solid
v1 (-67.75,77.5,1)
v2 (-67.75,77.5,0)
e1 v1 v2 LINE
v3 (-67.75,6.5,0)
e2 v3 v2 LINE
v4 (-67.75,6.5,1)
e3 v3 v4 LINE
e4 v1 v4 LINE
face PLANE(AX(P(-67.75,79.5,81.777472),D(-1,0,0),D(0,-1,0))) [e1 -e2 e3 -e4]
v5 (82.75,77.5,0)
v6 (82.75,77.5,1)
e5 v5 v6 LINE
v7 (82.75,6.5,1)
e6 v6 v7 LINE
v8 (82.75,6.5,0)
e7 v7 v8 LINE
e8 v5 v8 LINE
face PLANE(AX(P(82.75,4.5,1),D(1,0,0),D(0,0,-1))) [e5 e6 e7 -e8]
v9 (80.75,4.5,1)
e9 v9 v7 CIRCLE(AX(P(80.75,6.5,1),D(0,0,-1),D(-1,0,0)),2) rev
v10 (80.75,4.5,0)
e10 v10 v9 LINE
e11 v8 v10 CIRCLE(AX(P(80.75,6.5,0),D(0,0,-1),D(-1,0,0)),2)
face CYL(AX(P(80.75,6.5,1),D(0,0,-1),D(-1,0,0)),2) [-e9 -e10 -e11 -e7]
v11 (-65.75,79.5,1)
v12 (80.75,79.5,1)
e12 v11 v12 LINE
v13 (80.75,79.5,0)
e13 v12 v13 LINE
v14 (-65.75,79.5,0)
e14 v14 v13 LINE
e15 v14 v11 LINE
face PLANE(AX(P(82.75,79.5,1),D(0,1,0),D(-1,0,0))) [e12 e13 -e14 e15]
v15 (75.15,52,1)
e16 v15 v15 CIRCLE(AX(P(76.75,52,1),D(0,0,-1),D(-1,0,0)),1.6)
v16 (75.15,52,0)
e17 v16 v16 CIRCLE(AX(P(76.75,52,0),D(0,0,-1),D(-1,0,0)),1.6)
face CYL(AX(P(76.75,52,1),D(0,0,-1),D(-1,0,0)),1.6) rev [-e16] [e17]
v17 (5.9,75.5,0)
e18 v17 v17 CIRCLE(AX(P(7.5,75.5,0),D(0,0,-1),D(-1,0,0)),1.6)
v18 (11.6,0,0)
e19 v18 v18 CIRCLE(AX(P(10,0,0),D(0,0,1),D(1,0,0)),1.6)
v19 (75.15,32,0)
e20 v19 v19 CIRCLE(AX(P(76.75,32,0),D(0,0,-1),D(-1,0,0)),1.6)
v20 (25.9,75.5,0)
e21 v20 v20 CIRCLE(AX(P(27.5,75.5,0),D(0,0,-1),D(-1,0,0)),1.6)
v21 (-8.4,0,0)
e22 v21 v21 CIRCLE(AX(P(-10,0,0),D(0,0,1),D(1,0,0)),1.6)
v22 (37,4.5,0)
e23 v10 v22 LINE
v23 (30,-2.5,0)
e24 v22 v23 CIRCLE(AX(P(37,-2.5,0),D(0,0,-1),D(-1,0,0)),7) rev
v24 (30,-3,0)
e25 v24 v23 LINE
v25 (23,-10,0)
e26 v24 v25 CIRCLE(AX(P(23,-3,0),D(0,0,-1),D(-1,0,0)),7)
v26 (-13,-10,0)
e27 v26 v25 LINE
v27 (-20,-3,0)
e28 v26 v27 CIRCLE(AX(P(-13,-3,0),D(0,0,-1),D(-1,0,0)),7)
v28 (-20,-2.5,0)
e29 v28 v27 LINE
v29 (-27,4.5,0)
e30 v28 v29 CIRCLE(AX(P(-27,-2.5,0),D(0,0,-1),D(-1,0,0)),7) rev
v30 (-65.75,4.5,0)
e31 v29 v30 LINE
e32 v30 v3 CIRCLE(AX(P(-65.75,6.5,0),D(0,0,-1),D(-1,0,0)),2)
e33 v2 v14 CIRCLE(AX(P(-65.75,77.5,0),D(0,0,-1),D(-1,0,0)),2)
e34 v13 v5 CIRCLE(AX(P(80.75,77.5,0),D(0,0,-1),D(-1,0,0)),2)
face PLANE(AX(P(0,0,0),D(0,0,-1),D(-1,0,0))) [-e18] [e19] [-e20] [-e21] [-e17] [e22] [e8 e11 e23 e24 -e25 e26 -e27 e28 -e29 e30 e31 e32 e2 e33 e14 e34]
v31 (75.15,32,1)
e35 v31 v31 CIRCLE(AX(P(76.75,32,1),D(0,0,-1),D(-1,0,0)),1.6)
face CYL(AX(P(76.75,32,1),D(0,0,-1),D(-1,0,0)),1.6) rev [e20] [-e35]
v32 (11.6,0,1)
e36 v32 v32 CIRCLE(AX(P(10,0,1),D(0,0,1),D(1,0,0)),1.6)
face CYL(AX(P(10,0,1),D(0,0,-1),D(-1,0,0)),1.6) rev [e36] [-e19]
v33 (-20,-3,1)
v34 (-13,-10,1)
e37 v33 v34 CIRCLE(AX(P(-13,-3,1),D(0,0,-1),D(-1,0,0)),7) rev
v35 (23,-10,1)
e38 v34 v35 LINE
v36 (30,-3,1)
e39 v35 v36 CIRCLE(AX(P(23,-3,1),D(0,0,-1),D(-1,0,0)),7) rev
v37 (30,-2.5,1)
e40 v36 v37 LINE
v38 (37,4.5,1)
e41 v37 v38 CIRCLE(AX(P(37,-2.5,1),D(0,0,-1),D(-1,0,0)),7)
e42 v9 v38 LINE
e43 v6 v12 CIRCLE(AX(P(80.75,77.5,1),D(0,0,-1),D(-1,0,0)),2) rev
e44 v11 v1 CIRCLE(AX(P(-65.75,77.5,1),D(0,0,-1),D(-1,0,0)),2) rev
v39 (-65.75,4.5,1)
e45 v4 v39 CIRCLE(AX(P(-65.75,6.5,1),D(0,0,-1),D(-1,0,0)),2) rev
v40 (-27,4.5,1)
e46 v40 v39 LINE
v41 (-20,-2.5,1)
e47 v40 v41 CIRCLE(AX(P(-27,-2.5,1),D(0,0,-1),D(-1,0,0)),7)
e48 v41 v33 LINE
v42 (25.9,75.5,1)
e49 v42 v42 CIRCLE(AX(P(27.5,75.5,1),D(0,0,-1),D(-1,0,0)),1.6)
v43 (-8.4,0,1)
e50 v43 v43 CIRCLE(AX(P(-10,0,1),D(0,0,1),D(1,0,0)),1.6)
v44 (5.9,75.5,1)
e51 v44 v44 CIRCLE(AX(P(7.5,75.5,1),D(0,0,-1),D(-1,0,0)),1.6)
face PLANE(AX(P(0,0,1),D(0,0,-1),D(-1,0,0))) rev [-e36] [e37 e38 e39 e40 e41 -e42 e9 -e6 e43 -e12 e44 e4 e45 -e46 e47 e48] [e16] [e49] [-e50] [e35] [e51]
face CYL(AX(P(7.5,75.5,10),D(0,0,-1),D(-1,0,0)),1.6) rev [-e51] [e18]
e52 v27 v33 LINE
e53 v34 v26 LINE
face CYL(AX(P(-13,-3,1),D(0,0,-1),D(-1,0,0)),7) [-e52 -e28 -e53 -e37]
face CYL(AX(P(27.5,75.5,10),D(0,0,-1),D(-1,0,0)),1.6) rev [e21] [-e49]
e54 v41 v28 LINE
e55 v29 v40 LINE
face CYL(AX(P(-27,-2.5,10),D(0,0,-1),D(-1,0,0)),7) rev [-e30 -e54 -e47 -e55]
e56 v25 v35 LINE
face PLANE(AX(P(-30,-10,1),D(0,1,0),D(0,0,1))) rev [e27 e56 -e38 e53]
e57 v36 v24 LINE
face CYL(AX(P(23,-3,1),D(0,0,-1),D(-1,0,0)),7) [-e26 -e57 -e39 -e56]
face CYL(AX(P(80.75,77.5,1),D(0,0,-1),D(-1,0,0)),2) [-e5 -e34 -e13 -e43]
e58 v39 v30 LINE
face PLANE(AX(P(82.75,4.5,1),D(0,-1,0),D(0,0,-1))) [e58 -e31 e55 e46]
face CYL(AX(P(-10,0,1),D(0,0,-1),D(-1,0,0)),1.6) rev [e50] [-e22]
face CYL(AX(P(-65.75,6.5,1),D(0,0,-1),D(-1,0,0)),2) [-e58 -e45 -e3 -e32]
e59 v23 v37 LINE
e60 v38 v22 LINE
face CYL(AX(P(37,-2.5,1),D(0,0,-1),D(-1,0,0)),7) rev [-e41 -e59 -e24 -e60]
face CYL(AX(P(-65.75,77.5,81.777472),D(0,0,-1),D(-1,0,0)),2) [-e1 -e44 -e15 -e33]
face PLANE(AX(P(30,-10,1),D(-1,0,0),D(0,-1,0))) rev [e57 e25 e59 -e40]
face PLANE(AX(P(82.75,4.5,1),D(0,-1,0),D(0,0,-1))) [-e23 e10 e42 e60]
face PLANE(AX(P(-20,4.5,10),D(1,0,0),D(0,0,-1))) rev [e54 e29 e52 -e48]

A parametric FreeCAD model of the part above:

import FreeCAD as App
import Part
import Sketcher
from FreeCAD import Vector
Q = App.Units.Quantity


def edges_at(feature, points):
    """Names of the edges that pass closest to the given points."""
    edges = feature.Shape.Edges
    near = lambda p: min(range(len(edges)), key=lambda i: edges[i].distToShape(Part.Vertex(*p))[0])
    return sorted({f"Edge{near(p) + 1}" for p in points})


def add_polygon(sketch, points):
    """Adds a closed chain of lines whose ends are joined by coincident constraints."""
    first, n = sketch.GeometryCount, len(points)
    for a, b in zip(points, points[1:] + points[:1]):
        sketch.addGeometry(Part.LineSegment(App.Vector(*a, 0), App.Vector(*b, 0)), False)
    for i in range(n):
        sketch.addConstraint(Sketcher.Constraint("Coincident", first + i, 2, first + (i + 1) % n, 1))

doc = App.newDocument("Part")
body = doc.addObject("PartDesign::Body", "Body")

# Sketch on XY plane
sketch1 = body.newObject("Sketcher::SketchObject", "Sketch")
sketch1.AttachmentSupport = (doc.getObject("XY_Plane"), [""])
sketch1.MapMode = "FlatFace"
add_polygon(sketch1, [(-30, 4.5), (-30, -10), (30, -10), (30, 4.5)])  # lines 0-3
sketch1.addGeometry(Part.Circle(Vector(-10, 0, 0), Vector(0, 0, 1), 1.6), False)  # 4
sketch1.addGeometry(Part.Circle(Vector(10, 0, 0), Vector(0, 0, 1), 1.6), False)  # 5
sketch1.addConstraint([
    Sketcher.Constraint("Vertical", 0),
    Sketcher.Constraint("Horizontal", 1),
    Sketcher.Constraint("Vertical", 2),
    Sketcher.Constraint("Horizontal", 3),
    Sketcher.Constraint("Equal", 4, 5),
    Sketcher.Constraint("Symmetric", 4, 3, 5, 3, -1, 1),
    Sketcher.Constraint("PointOnObject", 4, 3, -1),
    Sketcher.Constraint("Diameter", 4, Q("3.2 mm")),
    Sketcher.Constraint("DistanceX", 1, 1, 1, 2, Q("60 mm")),
    Sketcher.Constraint("DistanceY", 0, 2, 0, 1, Q("14.5 mm")),
    Sketcher.Constraint("DistanceX", 4, 3, -1, 1, Q("10 mm")),
    Sketcher.Constraint("DistanceX", 0, 2, -1, 1, Q("30 mm")),
    Sketcher.Constraint("DistanceY", 0, 2, -1, 1, Q("10 mm")),
])
pad1 = body.newObject("PartDesign::Pad", "Pad")
pad1.Profile = sketch1
pad1.Length = 1

# Sketch on XY plane
sketch2 = body.newObject("Sketcher::SketchObject", "Sketch001")
sketch2.AttachmentSupport = (doc.getObject("XY_Plane"), [""])
sketch2.MapMode = "FlatFace"
add_polygon(sketch2, [(82.8, 79.5), (82.8, 4.5), (-37.8, 4.5), (-37.8, 79.5)])  # lines 0-3
sketch2.addGeometry(Part.Circle(Vector(76.8, 32, 0), Vector(0, 0, 1), 1.6), False)  # 4
sketch2.addGeometry(Part.Circle(Vector(76.8, 52, 0), Vector(0, 0, 1), 1.6), False)  # 5
sketch2.addConstraint([
    Sketcher.Constraint("Vertical", 0),
    Sketcher.Constraint("Horizontal", 1),
    Sketcher.Constraint("Vertical", 2),
    Sketcher.Constraint("Horizontal", 3),
    Sketcher.Constraint("Equal", 4, 5),
    Sketcher.Constraint("Vertical", 4, 3, 5, 3),
    Sketcher.Constraint("Diameter", 4, Q("3.2 mm")),
    Sketcher.Constraint("DistanceY", 0, 2, 0, 1, Q("75 mm")),
    Sketcher.Constraint("DistanceX", 1, 2, 1, 1, Q("120.5 mm")),
    Sketcher.Constraint("DistanceY", -1, 1, 4, 3, Q("32 mm")),
    Sketcher.Constraint("DistanceY", -1, 1, 5, 3, Q("52 mm")),
    Sketcher.Constraint("DistanceX", 4, 3, 0, 2, Q("6 mm")),
    Sketcher.Constraint("DistanceY", -1, 1, 0, 2, Q("4.5 mm")),
    Sketcher.Constraint("DistanceX", -1, 1, 4, 3, Q("76.75 mm")),
])
pad2 = body.newObject("PartDesign::Pad", "Pad001")
pad2.Profile = sketch2
pad2.Length = 1

# Sketch on XY plane
sketch3 = body.newObject("Sketcher::SketchObject", "Sketch002")
sketch3.AttachmentSupport = (doc.getObject("XY_Plane"), [""])
sketch3.MapMode = "FlatFace"
sketch3.addGeometry([
    Part.Circle(Vector(27.5, 75.5, 0), Vector(0, 0, 1), 1.6),
    Part.Circle(Vector(7.5, 75.5, 0), Vector(0, 0, 1), 1.6),
], False)
sketch3.addConstraint([
    Sketcher.Constraint("Equal", 0, 1),
    Sketcher.Constraint("Horizontal", 0, 3, 1, 3),
    Sketcher.Constraint("Diameter", 0, Q("3.2 mm")),
    Sketcher.Constraint("DistanceX", 1, 3, 0, 3, Q("20 mm")),
    Sketcher.Constraint("DistanceX", -1, 1, 0, 3, Q("27.5 mm")),
    Sketcher.Constraint("DistanceY", -1, 1, 0, 3, Q("75.5 mm")),
])
pocket1 = body.newObject("PartDesign::Pocket", "Pocket")
pocket1.Profile = sketch3
pocket1.Length = 10
pocket1.Reversed = True

# Sketch on XY plane
sketch4 = body.newObject("Sketcher::SketchObject", "Sketch003")
sketch4.AttachmentSupport = (doc.getObject("XY_Plane"), [""])
sketch4.MapMode = "FlatFace"
add_polygon(sketch4, [(-38, 80), (-38, 4), (-68, 4), (-68, 80)])  # lines 0-3
sketch4.addConstraint([
    Sketcher.Constraint("Vertical", 0),
    Sketcher.Constraint("Horizontal", 1),
    Sketcher.Constraint("Vertical", 2),
    Sketcher.Constraint("Horizontal", 3),
    Sketcher.Constraint("DistanceX", 1, 2, 1, 1, Q("30 mm")),
    Sketcher.Constraint("DistanceY", 0, 2, 0, 1, Q("75 mm")),
    Sketcher.Constraint("DistanceY", -1, 1, 0, 2, Q("4.5 mm")),
    Sketcher.Constraint("DistanceX", 0, 2, -1, 1, Q("37.75 mm")),
])
pad3 = body.newObject("PartDesign::Pad", "Pad002")
pad3.Profile = sketch4
pad3.Length = 1
doc.recompute()

fillet = body.newObject("PartDesign::Fillet", "Fillet")
fillet.Base = (pad3, edges_at(pad3, [(30, -10, 0.5), (30, 4.5, 0.5)]))
fillet.Radius = 7

# Sketch on XY plane
sketch5 = body.newObject("Sketcher::SketchObject", "Sketch004")
sketch5.AttachmentSupport = (doc.getObject("XY_Plane"), [""])
sketch5.MapMode = "FlatFace"
add_polygon(sketch5, [(-20, 4), (-20, -10), (-30, -10), (-30, 4)])  # lines 0-3
sketch5.addConstraint([
    Sketcher.Constraint("Vertical", 0),
    Sketcher.Constraint("Horizontal", 1),
    Sketcher.Constraint("Vertical", 2),
    Sketcher.Constraint("Horizontal", 3),
    Sketcher.Constraint("DistanceX", 1, 2, 1, 1, Q("10 mm")),
    Sketcher.Constraint("DistanceY", 0, 2, 0, 1, Q("14.5 mm")),
    Sketcher.Constraint("DistanceX", 0, 2, -1, 1, Q("20 mm")),
    Sketcher.Constraint("DistanceY", 0, 2, -1, 1, Q("10 mm")),
])
pocket2 = body.newObject("PartDesign::Pocket", "Pocket001")
pocket2.Profile = sketch5
pocket2.Length = 10
pocket2.Reversed = True
doc.recompute()

fillet2 = body.newObject("PartDesign::Fillet", "Fillet001")
fillet2.Base = (pocket2, edges_at(pocket2, [(-20, -10, 0.5), (-20, 4.5, 0.5)]))
fillet2.Radius = 7
doc.recompute()

fillet3 = body.newObject("PartDesign::Fillet", "Fillet002")
fillet3.Base = (fillet2, edges_at(fillet2, [
    (82.75, 4.5, 0.5),
    (82.75, 79.5, 0.5),
    (-67.75, 79.5, 0.5),
    (-67.75, 4.5, 0.5),
]))
fillet3.Radius = 2

doc.recompute()
